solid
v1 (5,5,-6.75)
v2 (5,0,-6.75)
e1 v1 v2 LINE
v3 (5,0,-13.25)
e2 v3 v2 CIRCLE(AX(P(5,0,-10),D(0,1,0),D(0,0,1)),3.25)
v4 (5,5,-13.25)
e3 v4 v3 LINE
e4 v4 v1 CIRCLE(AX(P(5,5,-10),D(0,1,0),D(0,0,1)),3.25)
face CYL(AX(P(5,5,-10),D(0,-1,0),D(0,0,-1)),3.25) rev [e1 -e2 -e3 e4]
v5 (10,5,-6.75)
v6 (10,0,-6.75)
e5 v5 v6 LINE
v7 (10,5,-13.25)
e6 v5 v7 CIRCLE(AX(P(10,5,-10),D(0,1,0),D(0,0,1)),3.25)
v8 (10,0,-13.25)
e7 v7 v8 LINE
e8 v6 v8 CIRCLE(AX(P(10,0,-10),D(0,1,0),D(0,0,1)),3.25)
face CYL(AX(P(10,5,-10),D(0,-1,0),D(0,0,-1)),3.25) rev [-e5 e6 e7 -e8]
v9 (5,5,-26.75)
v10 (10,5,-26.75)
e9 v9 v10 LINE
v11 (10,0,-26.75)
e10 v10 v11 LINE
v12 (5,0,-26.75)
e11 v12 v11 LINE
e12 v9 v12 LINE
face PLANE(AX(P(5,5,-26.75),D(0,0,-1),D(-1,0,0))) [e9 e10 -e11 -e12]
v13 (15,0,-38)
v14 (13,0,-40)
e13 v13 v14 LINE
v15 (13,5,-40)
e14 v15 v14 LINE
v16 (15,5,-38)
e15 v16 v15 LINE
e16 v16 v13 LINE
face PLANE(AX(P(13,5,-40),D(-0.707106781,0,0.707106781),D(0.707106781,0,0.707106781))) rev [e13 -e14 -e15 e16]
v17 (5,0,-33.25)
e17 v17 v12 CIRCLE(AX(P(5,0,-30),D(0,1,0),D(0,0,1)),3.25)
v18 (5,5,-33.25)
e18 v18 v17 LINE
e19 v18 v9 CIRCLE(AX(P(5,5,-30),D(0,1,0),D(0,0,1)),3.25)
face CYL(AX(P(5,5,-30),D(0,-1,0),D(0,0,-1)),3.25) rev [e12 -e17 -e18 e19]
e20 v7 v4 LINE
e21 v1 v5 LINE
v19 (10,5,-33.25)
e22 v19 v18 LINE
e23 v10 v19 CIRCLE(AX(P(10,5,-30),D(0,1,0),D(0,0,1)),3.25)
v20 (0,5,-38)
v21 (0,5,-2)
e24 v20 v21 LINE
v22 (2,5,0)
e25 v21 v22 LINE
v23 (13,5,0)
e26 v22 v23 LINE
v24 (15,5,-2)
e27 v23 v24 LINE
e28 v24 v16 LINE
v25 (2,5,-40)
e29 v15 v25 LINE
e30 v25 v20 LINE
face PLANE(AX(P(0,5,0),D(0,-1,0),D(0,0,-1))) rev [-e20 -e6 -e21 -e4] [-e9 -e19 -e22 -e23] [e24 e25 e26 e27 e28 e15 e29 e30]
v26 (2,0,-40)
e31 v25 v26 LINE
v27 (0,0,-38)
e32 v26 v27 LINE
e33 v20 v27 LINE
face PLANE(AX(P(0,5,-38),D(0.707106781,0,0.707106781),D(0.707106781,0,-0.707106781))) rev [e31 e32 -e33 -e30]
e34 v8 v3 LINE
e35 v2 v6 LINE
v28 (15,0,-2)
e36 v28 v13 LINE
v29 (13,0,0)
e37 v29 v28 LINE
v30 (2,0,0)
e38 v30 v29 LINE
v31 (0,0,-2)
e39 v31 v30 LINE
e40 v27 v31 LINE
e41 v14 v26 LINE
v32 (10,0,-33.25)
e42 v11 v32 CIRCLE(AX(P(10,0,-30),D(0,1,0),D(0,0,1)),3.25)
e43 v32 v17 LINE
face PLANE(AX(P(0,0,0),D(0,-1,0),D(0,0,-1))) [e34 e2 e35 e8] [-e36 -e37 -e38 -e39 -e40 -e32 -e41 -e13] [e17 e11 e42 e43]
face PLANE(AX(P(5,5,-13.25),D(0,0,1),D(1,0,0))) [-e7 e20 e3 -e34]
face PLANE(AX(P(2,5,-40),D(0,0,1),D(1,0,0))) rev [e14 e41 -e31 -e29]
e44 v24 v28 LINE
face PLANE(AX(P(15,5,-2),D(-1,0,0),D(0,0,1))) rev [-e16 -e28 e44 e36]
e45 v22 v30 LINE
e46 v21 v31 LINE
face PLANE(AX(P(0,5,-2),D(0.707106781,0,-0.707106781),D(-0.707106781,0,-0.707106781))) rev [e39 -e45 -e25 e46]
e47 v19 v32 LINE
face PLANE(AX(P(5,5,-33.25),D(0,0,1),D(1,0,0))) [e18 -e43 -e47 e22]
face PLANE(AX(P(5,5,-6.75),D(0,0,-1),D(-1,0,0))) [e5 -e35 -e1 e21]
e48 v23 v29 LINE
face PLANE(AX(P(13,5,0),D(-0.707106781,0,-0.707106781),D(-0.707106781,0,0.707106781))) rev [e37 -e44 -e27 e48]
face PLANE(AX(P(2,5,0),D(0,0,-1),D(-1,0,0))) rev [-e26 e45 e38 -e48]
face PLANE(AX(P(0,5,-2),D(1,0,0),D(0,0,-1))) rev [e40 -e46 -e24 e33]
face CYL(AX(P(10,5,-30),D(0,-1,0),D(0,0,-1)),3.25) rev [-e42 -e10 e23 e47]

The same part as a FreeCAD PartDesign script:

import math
import FreeCAD as App
import Part
import Sketcher
Q = App.Units.Quantity

doc = App.newDocument("Part")
params = doc.addObject("Spreadsheet::Sheet", "Params")
for row, (alias, value) in enumerate([
    ("sketch1_width", "11 mm"),
    ("sketch1_width2", "5 mm"),
    ("sketch1_height", "36 mm"),
    ("sketch1_radius", "3.25 mm"),
    ("pad1_length", "5 mm"),
], start=1):
    params.set(f"A{row}", alias)
    params.set(f"B{row}", "=" + value)
    params.setAlias(f"B{row}", alias)

body = doc.addObject("PartDesign::Body", "Body")

# Sketch on XZ plane
sketch1 = body.newObject("Sketcher::SketchObject", "Sketch")
sketch1.AttachmentSupport = (doc.getObject("XZ_Plane"), [""])
sketch1.MapMode = "FlatFace"
sketch1.addGeometry([
    Part.LineSegment(App.Vector(2, -40, 0), App.Vector(0, -38, 0)),  # 0
    Part.LineSegment(App.Vector(0, -38, 0), App.Vector(0, -2, 0)),  # 1
    Part.LineSegment(App.Vector(0, -2, 0), App.Vector(2, 0, 0)),  # 2
    Part.LineSegment(App.Vector(2, 0, 0), App.Vector(13, 0, 0)),  # 3
    Part.LineSegment(App.Vector(13, 0, 0), App.Vector(15, -2, 0)),  # 4
    Part.LineSegment(App.Vector(15, -2, 0), App.Vector(15, -38, 0)),  # 5
    Part.LineSegment(App.Vector(15, -38, 0), App.Vector(13, -40, 0)),  # 6
    Part.LineSegment(App.Vector(13, -40, 0), App.Vector(2, -40, 0)),  # 7
    Part.LineSegment(App.Vector(5, -13.25, 0), App.Vector(10, -13.25, 0)),  # 8
    Part.ArcOfCircle(Part.Circle(App.Vector(10, -10, 0), App.Vector(0, 0, 1), 3.25), math.radians(-90), math.radians(90)),  # 9
    Part.LineSegment(App.Vector(10, -6.75, 0), App.Vector(5, -6.75, 0)),  # 10
    Part.ArcOfCircle(Part.Circle(App.Vector(5, -10, 0), App.Vector(0, 0, 1), 3.25), math.radians(90), math.radians(270)),  # 11
    Part.LineSegment(App.Vector(5, -33.25, 0), App.Vector(10, -33.25, 0)),  # 12
    Part.ArcOfCircle(Part.Circle(App.Vector(10, -30, 0), App.Vector(0, 0, 1), 3.25), math.radians(-90), math.radians(90)),  # 13
    Part.LineSegment(App.Vector(10, -26.75, 0), App.Vector(5, -26.75, 0)),  # 14
    Part.ArcOfCircle(Part.Circle(App.Vector(5, -30, 0), App.Vector(0, 0, 1), 3.25), math.radians(90), math.radians(270)),  # 15
], False)
sketch1.addConstraint([
    Sketcher.Constraint("Coincident", 0, 2, 1, 1),
    Sketcher.Constraint("Coincident", 1, 2, 2, 1),
    Sketcher.Constraint("Coincident", 2, 2, 3, 1),
    Sketcher.Constraint("Coincident", 3, 2, 4, 1),
    Sketcher.Constraint("Coincident", 4, 2, 5, 1),
    Sketcher.Constraint("Coincident", 5, 2, 6, 1),
    Sketcher.Constraint("Coincident", 6, 2, 7, 1),
    Sketcher.Constraint("Coincident", 7, 2, 0, 1),
    Sketcher.Constraint("Tangent", 8, 2, 9, 1),
    Sketcher.Constraint("Tangent", 9, 2, 10, 1),
    Sketcher.Constraint("Tangent", 10, 2, 11, 1),
    Sketcher.Constraint("Tangent", 11, 2, 8, 1),
    Sketcher.Constraint("Tangent", 12, 2, 13, 1),
    Sketcher.Constraint("Tangent", 13, 2, 14, 1),
    Sketcher.Constraint("Tangent", 14, 2, 15, 1),
    Sketcher.Constraint("Tangent", 15, 2, 12, 1),
    Sketcher.Constraint("Vertical", 1),
    Sketcher.Constraint("Horizontal", 3),
    Sketcher.Constraint("Vertical", 5),
    Sketcher.Constraint("Horizontal", 7),
    Sketcher.Constraint("Horizontal", 8),
    Sketcher.Constraint("Horizontal", 10),
    Sketcher.Constraint("Horizontal", 12),
    Sketcher.Constraint("Horizontal", 14),
    Sketcher.Constraint("Equal", 11, 13),
    Sketcher.Constraint("PointOnObject", 0, 2, -2),
    Sketcher.Constraint("PointOnObject", 2, 2, -1),
    Sketcher.Constraint("Perpendicular", 0, 2),
    Sketcher.Constraint("Perpendicular", 2, 4),
    Sketcher.Constraint("Perpendicular", 4, 6),
    Sketcher.Constraint("Horizontal", 1, 2, 4, 2),
    Sketcher.Constraint("Horizontal", 0, 2, 5, 2),
    Sketcher.Constraint("Vertical", 9, 3, 13, 3),
    Sketcher.Constraint("Vertical", 11, 3, 15, 3),
    Sketcher.Constraint("Vertical", 3, 2, 6, 2),
    Sketcher.Constraint("Vertical", 2, 2, 7, 2),
    Sketcher.Constraint("DistanceX", 3, 1, 3, 2, Q("11 mm")),
    Sketcher.Constraint("DistanceX", 8, 1, 8, 2, Q("5 mm")),
    Sketcher.Constraint("DistanceY", 1, 1, 1, 2, Q("36 mm")),
    Sketcher.Constraint("Radius", 9, Q("3.25 mm")),
    Sketcher.Constraint("DistanceX", -1, 1, 9, 3, Q("10 mm")),
    Sketcher.Constraint("DistanceY", 9, 3, -1, 1, Q("10 mm")),
    Sketcher.Constraint("DistanceY", 13, 3, -1, 1, Q("30 mm")),
    Sketcher.Constraint("DistanceY", 0, 2, -1, 1, Q("38 mm")),
])
sketch1.setExpression("Constraints[36]", "Params.sketch1_width")
sketch1.setExpression("Constraints[37]", "Params.sketch1_width2")
sketch1.setExpression("Constraints[38]", "Params.sketch1_height")
sketch1.setExpression("Constraints[39]", "Params.sketch1_radius")
pad1 = body.newObject("PartDesign::Pad", "Pad")
pad1.Profile = sketch1
pad1.setExpression("Length", "Params.pad1_length")
pad1.Reversed = True

doc.recompute()
